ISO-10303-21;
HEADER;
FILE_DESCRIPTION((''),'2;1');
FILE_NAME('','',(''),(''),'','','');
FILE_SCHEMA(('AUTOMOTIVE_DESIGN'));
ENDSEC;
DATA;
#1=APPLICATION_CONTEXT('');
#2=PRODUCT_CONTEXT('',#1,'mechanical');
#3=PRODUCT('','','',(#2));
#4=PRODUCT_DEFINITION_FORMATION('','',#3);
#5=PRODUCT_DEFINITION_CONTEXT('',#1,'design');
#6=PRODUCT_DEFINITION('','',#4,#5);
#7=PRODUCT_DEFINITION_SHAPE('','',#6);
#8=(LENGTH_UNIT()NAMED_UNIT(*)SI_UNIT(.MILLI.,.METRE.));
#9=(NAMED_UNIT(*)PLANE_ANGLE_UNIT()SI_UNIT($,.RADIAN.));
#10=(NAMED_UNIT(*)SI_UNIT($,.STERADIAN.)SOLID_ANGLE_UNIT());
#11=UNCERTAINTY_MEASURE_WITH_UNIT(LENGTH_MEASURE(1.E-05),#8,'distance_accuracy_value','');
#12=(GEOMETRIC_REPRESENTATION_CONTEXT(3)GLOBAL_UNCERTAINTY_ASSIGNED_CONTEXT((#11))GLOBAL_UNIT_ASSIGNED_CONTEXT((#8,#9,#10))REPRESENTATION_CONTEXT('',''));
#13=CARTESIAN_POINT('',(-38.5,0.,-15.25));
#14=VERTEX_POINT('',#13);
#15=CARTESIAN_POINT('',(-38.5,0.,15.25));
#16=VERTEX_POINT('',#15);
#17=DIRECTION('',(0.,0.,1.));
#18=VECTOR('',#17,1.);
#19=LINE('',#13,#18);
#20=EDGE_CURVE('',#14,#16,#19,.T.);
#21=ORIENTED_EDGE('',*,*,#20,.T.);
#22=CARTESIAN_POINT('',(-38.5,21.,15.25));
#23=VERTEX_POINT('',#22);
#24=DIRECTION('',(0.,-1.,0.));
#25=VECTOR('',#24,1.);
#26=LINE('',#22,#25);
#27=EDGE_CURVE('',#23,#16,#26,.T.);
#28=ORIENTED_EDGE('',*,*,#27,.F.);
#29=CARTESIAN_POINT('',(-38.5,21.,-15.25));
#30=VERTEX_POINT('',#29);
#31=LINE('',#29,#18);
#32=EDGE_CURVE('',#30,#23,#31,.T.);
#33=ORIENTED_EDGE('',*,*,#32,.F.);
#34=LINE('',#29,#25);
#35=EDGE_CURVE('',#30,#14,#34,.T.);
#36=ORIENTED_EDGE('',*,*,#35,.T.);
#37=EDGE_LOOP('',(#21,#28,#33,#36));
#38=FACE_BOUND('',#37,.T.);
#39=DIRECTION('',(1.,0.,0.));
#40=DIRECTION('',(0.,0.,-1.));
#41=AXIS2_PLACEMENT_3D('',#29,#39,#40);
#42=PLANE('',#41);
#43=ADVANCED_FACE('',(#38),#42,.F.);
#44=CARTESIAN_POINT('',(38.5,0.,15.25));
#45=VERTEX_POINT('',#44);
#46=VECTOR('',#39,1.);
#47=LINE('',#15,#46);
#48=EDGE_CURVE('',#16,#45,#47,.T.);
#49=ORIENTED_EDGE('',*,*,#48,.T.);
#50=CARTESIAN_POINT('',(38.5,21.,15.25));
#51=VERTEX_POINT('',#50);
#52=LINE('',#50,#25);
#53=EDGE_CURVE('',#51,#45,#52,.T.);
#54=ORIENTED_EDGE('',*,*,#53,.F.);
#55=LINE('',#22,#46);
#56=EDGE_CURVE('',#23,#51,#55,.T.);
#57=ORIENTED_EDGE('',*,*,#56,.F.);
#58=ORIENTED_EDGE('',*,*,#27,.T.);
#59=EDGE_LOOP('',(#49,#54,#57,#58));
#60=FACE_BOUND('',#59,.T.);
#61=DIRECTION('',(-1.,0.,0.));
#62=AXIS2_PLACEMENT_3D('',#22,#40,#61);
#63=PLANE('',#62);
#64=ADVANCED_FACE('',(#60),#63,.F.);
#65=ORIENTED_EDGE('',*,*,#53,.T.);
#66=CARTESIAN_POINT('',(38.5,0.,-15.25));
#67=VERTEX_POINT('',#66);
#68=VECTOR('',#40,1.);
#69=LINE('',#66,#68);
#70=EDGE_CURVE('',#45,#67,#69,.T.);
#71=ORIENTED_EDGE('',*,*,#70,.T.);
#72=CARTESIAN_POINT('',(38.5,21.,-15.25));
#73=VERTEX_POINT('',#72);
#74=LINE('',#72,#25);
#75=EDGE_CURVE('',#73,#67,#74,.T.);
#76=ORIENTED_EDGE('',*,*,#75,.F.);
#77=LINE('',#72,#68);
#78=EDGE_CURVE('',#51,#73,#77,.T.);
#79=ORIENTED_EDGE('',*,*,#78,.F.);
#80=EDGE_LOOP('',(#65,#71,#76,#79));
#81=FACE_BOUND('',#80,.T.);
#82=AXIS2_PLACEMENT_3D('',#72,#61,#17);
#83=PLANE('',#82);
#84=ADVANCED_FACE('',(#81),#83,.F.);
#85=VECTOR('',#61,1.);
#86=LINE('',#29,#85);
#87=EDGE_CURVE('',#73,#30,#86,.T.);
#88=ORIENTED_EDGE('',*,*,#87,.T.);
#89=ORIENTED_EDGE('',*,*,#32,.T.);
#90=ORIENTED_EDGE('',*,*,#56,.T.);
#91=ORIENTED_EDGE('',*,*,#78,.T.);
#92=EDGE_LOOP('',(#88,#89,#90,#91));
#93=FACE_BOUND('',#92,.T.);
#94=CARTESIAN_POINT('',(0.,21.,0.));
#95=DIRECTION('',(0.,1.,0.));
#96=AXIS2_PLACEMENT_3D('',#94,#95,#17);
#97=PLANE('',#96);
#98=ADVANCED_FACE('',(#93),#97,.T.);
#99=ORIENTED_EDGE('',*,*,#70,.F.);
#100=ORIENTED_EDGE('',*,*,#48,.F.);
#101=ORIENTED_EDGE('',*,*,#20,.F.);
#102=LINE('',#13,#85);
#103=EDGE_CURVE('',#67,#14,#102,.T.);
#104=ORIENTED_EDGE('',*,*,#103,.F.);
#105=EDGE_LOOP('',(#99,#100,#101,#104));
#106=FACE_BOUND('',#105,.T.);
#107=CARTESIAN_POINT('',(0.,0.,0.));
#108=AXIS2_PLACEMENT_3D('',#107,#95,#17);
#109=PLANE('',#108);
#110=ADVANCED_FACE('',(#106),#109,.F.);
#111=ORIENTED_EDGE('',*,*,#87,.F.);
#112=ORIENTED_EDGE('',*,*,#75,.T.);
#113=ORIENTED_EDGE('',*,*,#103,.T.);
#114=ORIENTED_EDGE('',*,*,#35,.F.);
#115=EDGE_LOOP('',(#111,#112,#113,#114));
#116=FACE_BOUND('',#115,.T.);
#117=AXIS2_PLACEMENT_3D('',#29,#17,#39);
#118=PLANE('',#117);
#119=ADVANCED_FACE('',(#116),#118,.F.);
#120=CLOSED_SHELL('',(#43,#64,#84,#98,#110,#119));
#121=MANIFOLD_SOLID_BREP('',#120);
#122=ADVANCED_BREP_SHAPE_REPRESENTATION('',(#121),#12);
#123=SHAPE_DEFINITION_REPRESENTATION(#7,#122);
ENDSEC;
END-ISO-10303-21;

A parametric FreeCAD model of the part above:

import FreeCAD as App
import Part
import Sketcher
from FreeCAD import Vector

doc = App.newDocument("Part")
body = doc.addObject("PartDesign::Body", "Body")

sketch1 = body.newObject("Sketcher::SketchObject", "Sketch")
sketch1.AttachmentSupport = (doc.getObject("XZ_Plane"), [""])
sketch1.MapMode = "FlatFace"
sketch1.addGeometry(Part.LineSegment(Vector(-38, -15, 0), Vector(-38, 15, 0)), False)
sketch1.addGeometry(Part.LineSegment(Vector(-38, 15, 0), Vector(38, 15, 0)), False)
sketch1.addGeometry(Part.LineSegment(Vector(38, 15, 0), Vector(38, -15, 0)), False)
sketch1.addGeometry(Part.LineSegment(Vector(38, -15, 0), Vector(-38, -15, 0)), False)
sketch1.addConstraint(Sketcher.Constraint("Coincident", 0, 2, 1, 1))
sketch1.addConstraint(Sketcher.Constraint("Coincident", 1, 2, 2, 1))
sketch1.addConstraint(Sketcher.Constraint("Coincident", 2, 2, 3, 1))
sketch1.addConstraint(Sketcher.Constraint("Coincident", 3, 2, 0, 1))
sketch1.addConstraint(Sketcher.Constraint("Vertical", 0))
sketch1.addConstraint(Sketcher.Constraint("Horizontal", 1))
sketch1.addConstraint(Sketcher.Constraint("Vertical", 2))
sketch1.addConstraint(Sketcher.Constraint("Horizontal", 3))
sketch1.addConstraint(Sketcher.Constraint("Symmetric", 0, 2, 2, 2, -1, 1))
sketch1.addConstraint(Sketcher.Constraint("DistanceX", 1, 1, 1, 2, 77.0))
sketch1.addConstraint(Sketcher.Constraint("DistanceY", 0, 1, 0, 2, 30.5))
pad1 = body.newObject("PartDesign::Pad", "Pad")
pad1.Profile = sketch1
pad1.Length = 21
pad1.Reversed = True

doc.recompute()
